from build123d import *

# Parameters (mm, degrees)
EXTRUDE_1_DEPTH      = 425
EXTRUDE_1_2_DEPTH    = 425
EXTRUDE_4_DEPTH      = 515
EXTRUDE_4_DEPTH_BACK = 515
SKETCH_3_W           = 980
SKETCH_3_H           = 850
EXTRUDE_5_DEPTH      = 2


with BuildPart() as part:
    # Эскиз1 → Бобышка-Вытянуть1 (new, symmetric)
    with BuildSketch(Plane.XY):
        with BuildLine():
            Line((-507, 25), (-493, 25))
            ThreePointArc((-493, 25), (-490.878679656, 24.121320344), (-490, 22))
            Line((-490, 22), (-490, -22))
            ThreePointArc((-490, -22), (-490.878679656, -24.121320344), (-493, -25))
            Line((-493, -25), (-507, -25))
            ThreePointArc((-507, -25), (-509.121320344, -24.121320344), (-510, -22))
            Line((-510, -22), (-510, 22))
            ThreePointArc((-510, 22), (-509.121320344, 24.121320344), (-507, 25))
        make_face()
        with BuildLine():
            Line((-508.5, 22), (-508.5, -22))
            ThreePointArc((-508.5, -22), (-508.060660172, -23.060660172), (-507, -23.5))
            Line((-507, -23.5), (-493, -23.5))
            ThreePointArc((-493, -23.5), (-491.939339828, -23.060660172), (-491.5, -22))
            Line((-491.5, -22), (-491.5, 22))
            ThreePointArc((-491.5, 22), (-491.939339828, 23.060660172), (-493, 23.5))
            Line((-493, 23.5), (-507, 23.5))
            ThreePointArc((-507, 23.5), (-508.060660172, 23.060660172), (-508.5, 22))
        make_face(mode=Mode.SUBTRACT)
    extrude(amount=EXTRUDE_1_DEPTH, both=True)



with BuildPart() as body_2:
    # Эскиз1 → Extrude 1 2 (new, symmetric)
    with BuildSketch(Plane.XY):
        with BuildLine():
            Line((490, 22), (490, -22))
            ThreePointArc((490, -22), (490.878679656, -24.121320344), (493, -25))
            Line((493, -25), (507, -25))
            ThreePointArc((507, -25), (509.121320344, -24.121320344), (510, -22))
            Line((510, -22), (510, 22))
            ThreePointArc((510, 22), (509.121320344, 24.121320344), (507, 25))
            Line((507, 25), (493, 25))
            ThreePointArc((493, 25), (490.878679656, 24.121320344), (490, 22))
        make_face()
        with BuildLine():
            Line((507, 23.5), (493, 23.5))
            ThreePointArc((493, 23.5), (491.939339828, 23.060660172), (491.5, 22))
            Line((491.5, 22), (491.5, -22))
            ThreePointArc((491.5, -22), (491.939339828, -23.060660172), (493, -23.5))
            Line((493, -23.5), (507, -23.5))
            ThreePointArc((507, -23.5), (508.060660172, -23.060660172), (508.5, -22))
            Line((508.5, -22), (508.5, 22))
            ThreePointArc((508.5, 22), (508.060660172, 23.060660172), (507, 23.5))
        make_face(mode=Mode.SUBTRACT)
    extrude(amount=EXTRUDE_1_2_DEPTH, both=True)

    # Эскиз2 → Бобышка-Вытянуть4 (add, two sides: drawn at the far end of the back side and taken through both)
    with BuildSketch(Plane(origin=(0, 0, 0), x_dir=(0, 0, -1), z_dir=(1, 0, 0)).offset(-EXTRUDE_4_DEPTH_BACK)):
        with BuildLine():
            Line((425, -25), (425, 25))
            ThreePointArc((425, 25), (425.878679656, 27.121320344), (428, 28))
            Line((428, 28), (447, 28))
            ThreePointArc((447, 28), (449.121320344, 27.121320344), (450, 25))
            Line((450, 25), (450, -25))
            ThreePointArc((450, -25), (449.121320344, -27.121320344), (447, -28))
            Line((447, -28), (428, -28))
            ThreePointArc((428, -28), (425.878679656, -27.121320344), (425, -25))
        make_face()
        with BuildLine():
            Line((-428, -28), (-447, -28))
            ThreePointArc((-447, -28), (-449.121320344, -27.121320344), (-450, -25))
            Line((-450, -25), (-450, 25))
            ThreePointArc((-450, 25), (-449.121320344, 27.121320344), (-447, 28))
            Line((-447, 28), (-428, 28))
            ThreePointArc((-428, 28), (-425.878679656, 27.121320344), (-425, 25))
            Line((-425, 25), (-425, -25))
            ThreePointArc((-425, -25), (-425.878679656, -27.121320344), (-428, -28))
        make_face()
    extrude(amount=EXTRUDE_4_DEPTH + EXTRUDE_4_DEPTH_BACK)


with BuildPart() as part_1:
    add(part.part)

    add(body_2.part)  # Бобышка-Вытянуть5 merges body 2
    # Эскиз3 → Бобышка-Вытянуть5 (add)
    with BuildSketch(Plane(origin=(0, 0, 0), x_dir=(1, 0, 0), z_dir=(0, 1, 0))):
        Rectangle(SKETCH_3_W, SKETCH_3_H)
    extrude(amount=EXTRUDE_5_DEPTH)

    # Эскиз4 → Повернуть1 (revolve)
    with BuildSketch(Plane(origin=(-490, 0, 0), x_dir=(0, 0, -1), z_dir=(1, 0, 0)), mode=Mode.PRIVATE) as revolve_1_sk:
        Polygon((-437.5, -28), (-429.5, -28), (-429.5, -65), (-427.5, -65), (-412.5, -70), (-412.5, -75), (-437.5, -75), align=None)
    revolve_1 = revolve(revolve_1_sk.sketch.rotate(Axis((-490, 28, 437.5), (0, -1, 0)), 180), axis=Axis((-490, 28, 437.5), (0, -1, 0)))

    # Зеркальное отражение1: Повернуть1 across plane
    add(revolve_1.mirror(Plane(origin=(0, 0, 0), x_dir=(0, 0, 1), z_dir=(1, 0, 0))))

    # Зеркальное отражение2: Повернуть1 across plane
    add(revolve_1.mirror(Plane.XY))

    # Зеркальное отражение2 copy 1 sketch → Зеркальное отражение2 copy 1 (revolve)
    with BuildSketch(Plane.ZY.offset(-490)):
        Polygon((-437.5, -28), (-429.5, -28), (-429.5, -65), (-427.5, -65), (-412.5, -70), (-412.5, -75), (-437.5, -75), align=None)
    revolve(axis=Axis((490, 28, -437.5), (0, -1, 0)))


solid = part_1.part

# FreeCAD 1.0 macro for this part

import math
import FreeCAD as App
import Part
import Sketcher
Q = App.Units.Quantity


def add_polygon(sketch, points):
    """Adds a closed chain of lines whose ends are joined by coincident constraints."""
    first, n = sketch.GeometryCount, len(points)
    for a, b in zip(points, points[1:] + points[:1]):
        sketch.addGeometry(Part.LineSegment(App.Vector(*a, 0), App.Vector(*b, 0)), False)
    for i in range(n):
        sketch.addConstraint(Sketcher.Constraint("Coincident", first + i, 2, first + (i + 1) % n, 1))

doc = App.newDocument("Part")
body = doc.addObject("PartDesign::Body", "Body")

sketch1 = doc.addObject("Sketcher::SketchObject", "Sketch")
body.addObject(sketch1)
sketch1.AttachmentSupport = (doc.XY_Plane, [""])
sketch1.MapMode = "FlatFace"
sketch1.addGeometry(Part.LineSegment(App.Vector(-493, 25, 0), App.Vector(-507, 25, 0)), False)
sketch1.addGeometry(Part.ArcOfCircle(Part.Circle(App.Vector(-507, 22, 0), App.Vector(0, 0, 1), 3), math.radians(90), math.radians(180)), False)
sketch1.addGeometry(Part.LineSegment(App.Vector(-510, 22, 0), App.Vector(-510, -22, 0)), False)
sketch1.addGeometry(Part.ArcOfCircle(Part.Circle(App.Vector(-507, -22, 0), App.Vector(0, 0, 1), 3), math.radians(180), math.radians(270)), False)
sketch1.addGeometry(Part.LineSegment(App.Vector(-507, -25, 0), App.Vector(-493, -25, 0)), False)
sketch1.addGeometry(Part.ArcOfCircle(Part.Circle(App.Vector(-493, -22, 0), App.Vector(0, 0, 1), 3), math.radians(-90), math.radians(0)), False)
sketch1.addGeometry(Part.LineSegment(App.Vector(-490, -22, 0), App.Vector(-490, 22, 0)), False)
sketch1.addGeometry(Part.ArcOfCircle(Part.Circle(App.Vector(-493, 22, 0), App.Vector(0, 0, 1), 3), math.radians(0), math.radians(90)), False)
sketch1.addGeometry(Part.ArcOfCircle(Part.Circle(App.Vector(-507, 22, 0), App.Vector(0, 0, 1), 1.5), math.radians(90), math.radians(180)), False)
sketch1.addGeometry(Part.LineSegment(App.Vector(-507, 23.5, 0), App.Vector(-493, 23.5, 0)), False)
sketch1.addGeometry(Part.ArcOfCircle(Part.Circle(App.Vector(-493, 22, 0), App.Vector(0, 0, 1), 1.5), math.radians(0), math.radians(90)), False)
sketch1.addGeometry(Part.LineSegment(App.Vector(-491.5, 22, 0), App.Vector(-491.5, -22, 0)), False)
sketch1.addGeometry(Part.ArcOfCircle(Part.Circle(App.Vector(-493, -22, 0), App.Vector(0, 0, 1), 1.5), math.radians(-90), math.radians(0)), False)
sketch1.addGeometry(Part.LineSegment(App.Vector(-493, -23.5, 0), App.Vector(-507, -23.5, 0)), False)
sketch1.addGeometry(Part.ArcOfCircle(Part.Circle(App.Vector(-507, -22, 0), App.Vector(0, 0, 1), 1.5), math.radians(180), math.radians(270)), False)
sketch1.addGeometry(Part.LineSegment(App.Vector(-508.5, -22, 0), App.Vector(-508.5, 22, 0)), False)
sketch1.addConstraint(Sketcher.Constraint("Tangent", 0, 2, 1, 1))
sketch1.addConstraint(Sketcher.Constraint("Tangent", 1, 2, 2, 1))
sketch1.addConstraint(Sketcher.Constraint("Tangent", 2, 2, 3, 1))
sketch1.addConstraint(Sketcher.Constraint("Tangent", 3, 2, 4, 1))
sketch1.addConstraint(Sketcher.Constraint("Tangent", 4, 2, 5, 1))
sketch1.addConstraint(Sketcher.Constraint("Tangent", 5, 2, 6, 1))
sketch1.addConstraint(Sketcher.Constraint("Tangent", 6, 2, 7, 1))
sketch1.addConstraint(Sketcher.Constraint("Tangent", 7, 2, 0, 1))
sketch1.addConstraint(Sketcher.Constraint("Tangent", 8, 1, 9, 1))
sketch1.addConstraint(Sketcher.Constraint("Tangent", 9, 2, 10, 2))
sketch1.addConstraint(Sketcher.Constraint("Tangent", 10, 1, 11, 1))
sketch1.addConstraint(Sketcher.Constraint("Tangent", 11, 2, 12, 2))
sketch1.addConstraint(Sketcher.Constraint("Tangent", 12, 1, 13, 1))
sketch1.addConstraint(Sketcher.Constraint("Tangent", 13, 2, 14, 2))
sketch1.addConstraint(Sketcher.Constraint("Tangent", 14, 1, 15, 1))
sketch1.addConstraint(Sketcher.Constraint("Tangent", 15, 2, 8, 2))
sketch1.addConstraint(Sketcher.Constraint("Horizontal", 0))
sketch1.addConstraint(Sketcher.Constraint("Vertical", 2))
sketch1.addConstraint(Sketcher.Constraint("Horizontal", 4))
sketch1.addConstraint(Sketcher.Constraint("Vertical", 6))
sketch1.addConstraint(Sketcher.Constraint("Horizontal", 9))
sketch1.addConstraint(Sketcher.Constraint("Vertical", 11))
sketch1.addConstraint(Sketcher.Constraint("Horizontal", 13))
sketch1.addConstraint(Sketcher.Constraint("Vertical", 15))
sketch1.addConstraint(Sketcher.Constraint("Coincident", 8, 3, 1, 3))
sketch1.addConstraint(Sketcher.Constraint("Coincident", 10, 3, 7, 3))
sketch1.addConstraint(Sketcher.Constraint("Coincident", 12, 3, 5, 3))
sketch1.addConstraint(Sketcher.Constraint("Equal", 1, 3))
sketch1.addConstraint(Sketcher.Constraint("Equal", 3, 5))
sketch1.addConstraint(Sketcher.Constraint("Equal", 5, 7))
sketch1.addConstraint(Sketcher.Constraint("Equal", 12, 14))
sketch1.addConstraint(Sketcher.Constraint("Radius", 1, Q("3 mm")))
sketch1.addConstraint(Sketcher.Constraint("Radius", 8, Q("1.5 mm")))
sketch1.addConstraint(Sketcher.Constraint("DistanceX", 0, 2, 0, 1, Q("14 mm")))
sketch1.addConstraint(Sketcher.Constraint("DistanceY", 2, 2, 2, 1, Q("44 mm")))
sketch1.addConstraint(Sketcher.Constraint("DistanceX", 1, 3, -1, 1, Q("507 mm")))
sketch1.addConstraint(Sketcher.Constraint("DistanceY", -1, 1, 1, 3, Q("22 mm")))
pad1 = doc.addObject("PartDesign::Pad", "Pad")
body.addObject(pad1)
pad1.Profile = sketch1
pad1.Length = 850
pad1.Midplane = True
body2 = doc.addObject("PartDesign::Body", "Body001")

sketch2 = doc.addObject("Sketcher::SketchObject", "Sketch001")
body2.addObject(sketch2)
sketch2.AttachmentSupport = (doc.getObject("XY_Plane001"), [""])
sketch2.MapMode = "FlatFace"
sketch2.addGeometry(Part.LineSegment(App.Vector(490, 22, 0), App.Vector(490, -22, 0)), False)
sketch2.addGeometry(Part.ArcOfCircle(Part.Circle(App.Vector(493, -22, 0), App.Vector(0, 0, 1), 3), math.radians(180), math.radians(270)), False)
sketch2.addGeometry(Part.LineSegment(App.Vector(493, -25, 0), App.Vector(507, -25, 0)), False)
sketch2.addGeometry(Part.ArcOfCircle(Part.Circle(App.Vector(507, -22, 0), App.Vector(0, 0, 1), 3), math.radians(-90), math.radians(0)), False)
sketch2.addGeometry(Part.LineSegment(App.Vector(510, -22, 0), App.Vector(510, 22, 0)), False)
sketch2.addGeometry(Part.ArcOfCircle(Part.Circle(App.Vector(507, 22, 0), App.Vector(0, 0, 1), 3), math.radians(0), math.radians(90)), False)
sketch2.addGeometry(Part.LineSegment(App.Vector(507, 25, 0), App.Vector(493, 25, 0)), False)
sketch2.addGeometry(Part.ArcOfCircle(Part.Circle(App.Vector(493, 22, 0), App.Vector(0, 0, 1), 3), math.radians(90), math.radians(180)), False)
sketch2.addGeometry(Part.LineSegment(App.Vector(493, 23.5, 0), App.Vector(507, 23.5, 0)), False)
sketch2.addGeometry(Part.ArcOfCircle(Part.Circle(App.Vector(507, 22, 0), App.Vector(0, 0, 1), 1.5), math.radians(0), math.radians(90)), False)
sketch2.addGeometry(Part.LineSegment(App.Vector(508.5, 22, 0), App.Vector(508.5, -22, 0)), False)
sketch2.addGeometry(Part.ArcOfCircle(Part.Circle(App.Vector(507, -22, 0), App.Vector(0, 0, 1), 1.5), math.radians(-90), math.radians(0)), False)
sketch2.addGeometry(Part.LineSegment(App.Vector(507, -23.5, 0), App.Vector(493, -23.5, 0)), False)
sketch2.addGeometry(Part.ArcOfCircle(Part.Circle(App.Vector(493, -22, 0), App.Vector(0, 0, 1), 1.5), math.radians(180), math.radians(270)), False)
sketch2.addGeometry(Part.LineSegment(App.Vector(491.5, -22, 0), App.Vector(491.5, 22, 0)), False)
sketch2.addGeometry(Part.ArcOfCircle(Part.Circle(App.Vector(493, 22, 0), App.Vector(0, 0, 1), 1.5), math.radians(90), math.radians(180)), False)
sketch2.addConstraint(Sketcher.Constraint("Tangent", 0, 2, 1, 1))
sketch2.addConstraint(Sketcher.Constraint("Tangent", 1, 2, 2, 1))
sketch2.addConstraint(Sketcher.Constraint("Tangent", 2, 2, 3, 1))
sketch2.addConstraint(Sketcher.Constraint("Tangent", 3, 2, 4, 1))
sketch2.addConstraint(Sketcher.Constraint("Tangent", 4, 2, 5, 1))
sketch2.addConstraint(Sketcher.Constraint("Tangent", 5, 2, 6, 1))
sketch2.addConstraint(Sketcher.Constraint("Tangent", 6, 2, 7, 1))
sketch2.addConstraint(Sketcher.Constraint("Tangent", 7, 2, 0, 1))
sketch2.addConstraint(Sketcher.Constraint("Tangent", 8, 2, 9, 2))
sketch2.addConstraint(Sketcher.Constraint("Tangent", 9, 1, 10, 1))
sketch2.addConstraint(Sketcher.Constraint("Tangent", 10, 2, 11, 2))
sketch2.addConstraint(Sketcher.Constraint("Tangent", 11, 1, 12, 1))
sketch2.addConstraint(Sketcher.Constraint("Tangent", 12, 2, 13, 2))
sketch2.addConstraint(Sketcher.Constraint("Tangent", 13, 1, 14, 1))
sketch2.addConstraint(Sketcher.Constraint("Tangent", 14, 2, 15, 2))
sketch2.addConstraint(Sketcher.Constraint("Tangent", 15, 1, 8, 1))
sketch2.addConstraint(Sketcher.Constraint("Vertical", 0))
sketch2.addConstraint(Sketcher.Constraint("Horizontal", 2))
sketch2.addConstraint(Sketcher.Constraint("Vertical", 4))
sketch2.addConstraint(Sketcher.Constraint("Horizontal", 6))
sketch2.addConstraint(Sketcher.Constraint("Horizontal", 8))
sketch2.addConstraint(Sketcher.Constraint("Vertical", 10))
sketch2.addConstraint(Sketcher.Constraint("Horizontal", 12))
sketch2.addConstraint(Sketcher.Constraint("Vertical", 14))
sketch2.addConstraint(Sketcher.Constraint("Coincident", 9, 3, 5, 3))
sketch2.addConstraint(Sketcher.Constraint("Coincident", 11, 3, 3, 3))
sketch2.addConstraint(Sketcher.Constraint("Coincident", 13, 3, 1, 3))
sketch2.addConstraint(Sketcher.Constraint("Equal", 1, 3))
sketch2.addConstraint(Sketcher.Constraint("Equal", 3, 5))
sketch2.addConstraint(Sketcher.Constraint("Equal", 5, 7))
sketch2.addConstraint(Sketcher.Constraint("Equal", 13, 15))
sketch2.addConstraint(Sketcher.Constraint("Radius", 1, Q("3 mm")))
sketch2.addConstraint(Sketcher.Constraint("Radius", 9, Q("1.5 mm")))
sketch2.addConstraint(Sketcher.Constraint("DistanceX", 2, 1, 2, 2, Q("14 mm")))
sketch2.addConstraint(Sketcher.Constraint("DistanceY", 0, 2, 0, 1, Q("44 mm")))
sketch2.addConstraint(Sketcher.Constraint("DistanceX", -1, 1, 1, 3, Q("493 mm")))
sketch2.addConstraint(Sketcher.Constraint("DistanceY", 1, 3, -1, 1, Q("22 mm")))
pad2 = doc.addObject("PartDesign::Pad", "Pad001")
body2.addObject(pad2)
pad2.Profile = sketch2
pad2.Length = 850
pad2.Midplane = True

sketch3 = doc.addObject("Sketcher::SketchObject", "Sketch002")
body2.addObject(sketch3)
sketch3.AttachmentSupport = (doc.getObject("YZ_Plane001"), [""])
sketch3.MapMode = "FlatFace"
sketch3.addGeometry(Part.LineSegment(App.Vector(25, -425, 0), App.Vector(-25, -425, 0)), False)
sketch3.addGeometry(Part.ArcOfCircle(Part.Circle(App.Vector(-25, -428, 0), App.Vector(0, 0, 1), 3), math.radians(90), math.radians(180)), False)
sketch3.addGeometry(Part.LineSegment(App.Vector(-28, -428, 0), App.Vector(-28, -447, 0)), False)
sketch3.addGeometry(Part.ArcOfCircle(Part.Circle(App.Vector(-25, -447, 0), App.Vector(0, 0, 1), 3), math.radians(180), math.radians(270)), False)
sketch3.addGeometry(Part.LineSegment(App.Vector(-25, -450, 0), App.Vector(25, -450, 0)), False)
sketch3.addGeometry(Part.ArcOfCircle(Part.Circle(App.Vector(25, -447, 0), App.Vector(0, 0, 1), 3), math.radians(-90), math.radians(0)), False)
sketch3.addGeometry(Part.LineSegment(App.Vector(28, -447, 0), App.Vector(28, -428, 0)), False)
sketch3.addGeometry(Part.ArcOfCircle(Part.Circle(App.Vector(25, -428, 0), App.Vector(0, 0, 1), 3), math.radians(0), math.radians(90)), False)
sketch3.addGeometry(Part.LineSegment(App.Vector(-28, 447, 0), App.Vector(-28, 428, 0)), False)
sketch3.addGeometry(Part.ArcOfCircle(Part.Circle(App.Vector(-25, 428, 0), App.Vector(0, 0, 1), 3), math.radians(180), math.radians(270)), False)
sketch3.addGeometry(Part.LineSegment(App.Vector(-25, 425, 0), App.Vector(25, 425, 0)), False)
sketch3.addGeometry(Part.ArcOfCircle(Part.Circle(App.Vector(25, 428, 0), App.Vector(0, 0, 1), 3), math.radians(-90), math.radians(0)), False)
sketch3.addGeometry(Part.LineSegment(App.Vector(28, 428, 0), App.Vector(28, 447, 0)), False)
sketch3.addGeometry(Part.ArcOfCircle(Part.Circle(App.Vector(25, 447, 0), App.Vector(0, 0, 1), 3), math.radians(0), math.radians(90)), False)
sketch3.addGeometry(Part.LineSegment(App.Vector(25, 450, 0), App.Vector(-25, 450, 0)), False)
sketch3.addGeometry(Part.ArcOfCircle(Part.Circle(App.Vector(-25, 447, 0), App.Vector(0, 0, 1), 3), math.radians(90), math.radians(180)), False)
sketch3.addConstraint(Sketcher.Constraint("Tangent", 0, 2, 1, 1))
sketch3.addConstraint(Sketcher.Constraint("Tangent", 1, 2, 2, 1))
sketch3.addConstraint(Sketcher.Constraint("Tangent", 2, 2, 3, 1))
sketch3.addConstraint(Sketcher.Constraint("Tangent", 3, 2, 4, 1))
sketch3.addConstraint(Sketcher.Constraint("Tangent", 4, 2, 5, 1))
sketch3.addConstraint(Sketcher.Constraint("Tangent", 5, 2, 6, 1))
sketch3.addConstraint(Sketcher.Constraint("Tangent", 6, 2, 7, 1))
sketch3.addConstraint(Sketcher.Constraint("Tangent", 7, 2, 0, 1))
sketch3.addConstraint(Sketcher.Constraint("Tangent", 8, 2, 9, 1))
sketch3.addConstraint(Sketcher.Constraint("Tangent", 9, 2, 10, 1))
sketch3.addConstraint(Sketcher.Constraint("Tangent", 10, 2, 11, 1))
sketch3.addConstraint(Sketcher.Constraint("Tangent", 11, 2, 12, 1))
sketch3.addConstraint(Sketcher.Constraint("Tangent", 12, 2, 13, 1))
sketch3.addConstraint(Sketcher.Constraint("Tangent", 13, 2, 14, 1))
sketch3.addConstraint(Sketcher.Constraint("Tangent", 14, 2, 15, 1))
sketch3.addConstraint(Sketcher.Constraint("Tangent", 15, 2, 8, 1))
sketch3.addConstraint(Sketcher.Constraint("Horizontal", 0))
sketch3.addConstraint(Sketcher.Constraint("Vertical", 2))
sketch3.addConstraint(Sketcher.Constraint("Horizontal", 4))
sketch3.addConstraint(Sketcher.Constraint("Vertical", 6))
sketch3.addConstraint(Sketcher.Constraint("Vertical", 8))
sketch3.addConstraint(Sketcher.Constraint("Horizontal", 10))
sketch3.addConstraint(Sketcher.Constraint("Vertical", 12))
sketch3.addConstraint(Sketcher.Constraint("Horizontal", 14))
sketch3.addConstraint(Sketcher.Constraint("Equal", 1, 3))
sketch3.addConstraint(Sketcher.Constraint("Equal", 3, 5))
sketch3.addConstraint(Sketcher.Constraint("Equal", 5, 7))
sketch3.addConstraint(Sketcher.Constraint("Equal", 7, 9))
sketch3.addConstraint(Sketcher.Constraint("Equal", 9, 11))
sketch3.addConstraint(Sketcher.Constraint("Equal", 11, 13))
sketch3.addConstraint(Sketcher.Constraint("Equal", 13, 15))
sketch3.addConstraint(Sketcher.Constraint("Symmetric", 7, 3, 9, 3, -1, 1))
sketch3.addConstraint(Sketcher.Constraint("Symmetric", 3, 3, 13, 3, -1, 1))
sketch3.addConstraint(Sketcher.Constraint("Vertical", 3, 3, 9, 3))
sketch3.addConstraint(Sketcher.Constraint("Radius", 1, Q("3 mm")))
sketch3.addConstraint(Sketcher.Constraint("DistanceX", 0, 2, 0, 1, Q("50 mm")))
sketch3.addConstraint(Sketcher.Constraint("DistanceY", 2, 2, 2, 1, Q("19 mm")))
sketch3.addConstraint(Sketcher.Constraint("DistanceY", 1, 3, -1, 1, Q("428 mm")))
pad3 = doc.addObject("PartDesign::Pad", "Pad002")
body2.addObject(pad3)
pad3.Profile = sketch3
pad3.Type = "TwoLengths"
pad3.Length = 515
pad3.Length2 = 515
doc.recompute()

boolean = doc.addObject("PartDesign::Boolean", "Boolean")
body.addObject(boolean)
boolean.Type = "Fuse"
boolean.addObjects([body2])

sketch4 = doc.addObject("Sketcher::SketchObject", "Sketch003")
body.addObject(sketch4)
sketch4.AttachmentSupport = (doc.XZ_Plane, [""])
sketch4.MapMode = "FlatFace"
add_polygon(sketch4, [(-490, -425), (-490, 425), (490, 425), (490, -425)])
sketch4.addConstraint(Sketcher.Constraint("Vertical", 0))
sketch4.addConstraint(Sketcher.Constraint("Horizontal", 1))
sketch4.addConstraint(Sketcher.Constraint("Vertical", 2))
sketch4.addConstraint(Sketcher.Constraint("Horizontal", 3))
sketch4.addConstraint(Sketcher.Constraint("Symmetric", 0, 2, 2, 2, -1, 1))
sketch4.addConstraint(Sketcher.Constraint("DistanceX", 1, 1, 1, 2, Q("980 mm")))
sketch4.addConstraint(Sketcher.Constraint("DistanceY", 0, 1, 0, 2, Q("850 mm")))
pad4 = doc.addObject("PartDesign::Pad", "Pad003")
body.addObject(pad4)
pad4.Profile = sketch4
pad4.Length = 2
pad4.Reversed = True

sketch5 = doc.addObject("Sketcher::SketchObject", "Sketch004")
body.addObject(sketch5)
sketch5.AttachmentSupport = (doc.YZ_Plane, [""])
sketch5.MapMode = "FlatFace"
sketch5.AttachmentOffset = App.Placement(App.Vector(0, 0, -490), App.Rotation())
add_polygon(sketch5, [(-28, 429.5), (-28, 437.5), (-75, 437.5), (-75, 412.5), (-70, 412.5), (-65, 427.5), (-65, 429.5)])
sketch5.addGeometry(Part.LineSegment(App.Vector(-28, 437.5, 0), App.Vector(-75, 437.5, 0)), True)
sketch5.addConstraint(Sketcher.Constraint("Vertical", 0))
sketch5.addConstraint(Sketcher.Constraint("Horizontal", 1))
sketch5.addConstraint(Sketcher.Constraint("Vertical", 2))
sketch5.addConstraint(Sketcher.Constraint("Horizontal", 3))
sketch5.addConstraint(Sketcher.Constraint("Vertical", 5))
sketch5.addConstraint(Sketcher.Constraint("Horizontal", 6))
sketch5.addConstraint(Sketcher.Constraint("Horizontal", 7))
sketch5.addConstraint(Sketcher.Constraint("Coincident", 7, 1, 0, 2))
sketch5.addConstraint(Sketcher.Constraint("Vertical", 2, 2, 7, 2))
sketch5.addConstraint(Sketcher.Constraint("DistanceX", 1, 2, 1, 1, Q("47 mm")))
sketch5.addConstraint(Sketcher.Constraint("DistanceX", 3, 1, 3, 2, Q("5 mm")))
sketch5.addConstraint(Sketcher.Constraint("DistanceX", 6, 1, 6, 2, Q("37 mm")))
sketch5.addConstraint(Sketcher.Constraint("DistanceY", 0, 1, 0, 2, Q("8 mm")))
sketch5.addConstraint(Sketcher.Constraint("DistanceY", 2, 2, 2, 1, Q("25 mm")))
sketch5.addConstraint(Sketcher.Constraint("DistanceY", 5, 1, 5, 2, Q("2 mm")))
sketch5.addConstraint(Sketcher.Constraint("DistanceX", 0, 2, -1, 1, Q("28 mm")))
sketch5.addConstraint(Sketcher.Constraint("DistanceY", -1, 1, 0, 2, Q("437.5 mm")))
revolution = doc.addObject("PartDesign::Revolution", "Revolution")
body.addObject(revolution)
revolution.Profile = sketch5
revolution.ReferenceAxis = (sketch5, ["Axis0"])
revolution.Angle = 360
doc.recompute()

mirrored = doc.addObject("PartDesign::Mirrored", "Mirrored")
body.addObject(mirrored)
mirrored.Originals = [revolution]
mirrored.MirrorPlane = (doc.YZ_Plane, [""])
body.Tip = mirrored
doc.recompute()

mirrored2 = doc.addObject("PartDesign::Mirrored", "Mirrored001")
body.addObject(mirrored2)
mirrored2.Originals = [revolution]
mirrored2.MirrorPlane = (doc.XY_Plane, [""])
body.Tip = mirrored2

sketch6 = doc.addObject("Sketcher::SketchObject", "Sketch005")
body.addObject(sketch6)
sketch6.AttachmentSupport = (doc.YZ_Plane, [""])
sketch6.MapMode = "FlatFace"
sketch6.AttachmentOffset = App.Placement(App.Vector(0, 0, 490), App.Rotation())
add_polygon(sketch6, [(-28, -429.5), (-28, -437.5), (-75, -437.5), (-75, -412.5), (-70, -412.5), (-65, -427.5), (-65, -429.5)])
sketch6.addGeometry(Part.LineSegment(App.Vector(-28, -437.5, 0), App.Vector(-75, -437.5, 0)), True)
sketch6.addConstraint(Sketcher.Constraint("Vertical", 0))
sketch6.addConstraint(Sketcher.Constraint("Horizontal", 1))
sketch6.addConstraint(Sketcher.Constraint("Vertical", 2))
sketch6.addConstraint(Sketcher.Constraint("Horizontal", 3))
sketch6.addConstraint(Sketcher.Constraint("Vertical", 5))
sketch6.addConstraint(Sketcher.Constraint("Horizontal", 6))
sketch6.addConstraint(Sketcher.Constraint("Horizontal", 7))
sketch6.addConstraint(Sketcher.Constraint("Coincident", 7, 1, 0, 2))
sketch6.addConstraint(Sketcher.Constraint("Vertical", 2, 2, 7, 2))
sketch6.addConstraint(Sketcher.Constraint("DistanceX", 1, 2, 1, 1, Q("47 mm")))
sketch6.addConstraint(Sketcher.Constraint("DistanceX", 3, 1, 3, 2, Q("5 mm")))
sketch6.addConstraint(Sketcher.Constraint("DistanceX", 6, 1, 6, 2, Q("37 mm")))
sketch6.addConstraint(Sketcher.Constraint("DistanceY", 0, 2, 0, 1, Q("8 mm")))
sketch6.addConstraint(Sketcher.Constraint("DistanceY", 2, 1, 2, 2, Q("25 mm")))
sketch6.addConstraint(Sketcher.Constraint("DistanceY", 5, 2, 5, 1, Q("2 mm")))
sketch6.addConstraint(Sketcher.Constraint("DistanceX", 0, 2, -1, 1, Q("28 mm")))
sketch6.addConstraint(Sketcher.Constraint("DistanceY", 0, 2, -1, 1, Q("437.5 mm")))
revolution2 = doc.addObject("PartDesign::Revolution", "Revolution001")
body.addObject(revolution2)
revolution2.Profile = sketch6
revolution2.ReferenceAxis = (sketch6, ["Axis0"])
revolution2.Angle = 360

doc.recompute()
